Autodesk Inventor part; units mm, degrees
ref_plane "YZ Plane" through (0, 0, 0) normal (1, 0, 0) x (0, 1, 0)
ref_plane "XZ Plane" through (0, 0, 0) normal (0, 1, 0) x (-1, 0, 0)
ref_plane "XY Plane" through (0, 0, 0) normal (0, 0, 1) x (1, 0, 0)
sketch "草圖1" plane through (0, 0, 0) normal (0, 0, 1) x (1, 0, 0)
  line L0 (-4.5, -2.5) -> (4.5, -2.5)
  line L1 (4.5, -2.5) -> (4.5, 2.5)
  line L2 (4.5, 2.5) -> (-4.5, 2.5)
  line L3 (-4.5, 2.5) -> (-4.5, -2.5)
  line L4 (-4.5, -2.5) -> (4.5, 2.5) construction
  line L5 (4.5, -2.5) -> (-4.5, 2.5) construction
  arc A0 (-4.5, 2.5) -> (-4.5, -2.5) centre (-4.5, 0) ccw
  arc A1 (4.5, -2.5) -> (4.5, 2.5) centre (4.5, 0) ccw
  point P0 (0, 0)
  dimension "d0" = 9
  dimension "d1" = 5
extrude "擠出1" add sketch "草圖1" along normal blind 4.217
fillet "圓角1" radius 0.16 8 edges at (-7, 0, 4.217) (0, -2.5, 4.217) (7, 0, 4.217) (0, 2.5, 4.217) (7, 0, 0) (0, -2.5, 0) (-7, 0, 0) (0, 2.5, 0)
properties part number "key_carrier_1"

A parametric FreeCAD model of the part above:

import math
import FreeCAD as App
import Part
import Sketcher
from FreeCAD import Vector
Q = App.Units.Quantity


def edges_at(feature, points):
    """Names of the edges that pass closest to the given points."""
    edges = feature.Shape.Edges
    near = lambda p: min(range(len(edges)), key=lambda i: edges[i].distToShape(Part.Vertex(*p))[0])
    return sorted({f"Edge{near(p) + 1}" for p in points})

doc = App.newDocument("Part")
body = doc.addObject("PartDesign::Body", "Body")

sketch1 = body.newObject("Sketcher::SketchObject", "Sketch")
sketch1.AttachmentSupport = (doc.getObject("XY_Plane"), [""])
sketch1.MapMode = "FlatFace"
sketch1.addGeometry([
    Part.LineSegment(Vector(4.5, 2.5, 0), Vector(-4.5, 2.5, 0)),
    Part.ArcOfCircle(Part.Circle(Vector(-4.5, 0, 0), Vector(0, 0, 1), 2.5), math.radians(90), math.radians(270)),
    Part.LineSegment(Vector(-4.5, -2.5, 0), Vector(4.5, -2.5, 0)),
    Part.ArcOfCircle(Part.Circle(Vector(4.5, 0, 0), Vector(0, 0, 1), 2.5), math.radians(-90), math.radians(90)),
], False)
sketch1.addConstraint([
    Sketcher.Constraint("Tangent", 0, 2, 1, 1),
    Sketcher.Constraint("Tangent", 1, 2, 2, 1),
    Sketcher.Constraint("Tangent", 2, 2, 3, 1),
    Sketcher.Constraint("Tangent", 3, 2, 0, 1),
    Sketcher.Constraint("Horizontal", 0),
    Sketcher.Constraint("Horizontal", 2),
    Sketcher.Constraint("Symmetric", 1, 3, 3, 3, -1, 1),
    Sketcher.Constraint("Radius", 1, Q("2.5 mm")),
    Sketcher.Constraint("DistanceX", 0, 2, 0, 1, Q("9 mm")),
])
pad1 = body.newObject("PartDesign::Pad", "Pad")
pad1.Profile = sketch1
pad1.Length = 4.217
doc.recompute()

fillet = body.newObject("PartDesign::Fillet", "Fillet")
fillet.Base = (pad1, edges_at(pad1, [
    (-7, 0, 4.217),
    (0, -2.5, 4.217),
    (7, 0, 4.217),
    (0, 2.5, 4.217),
    (7, 0, 0),
    (0, -2.5, 0),
    (-7, 0, 0),
    (0, 2.5, 0),
]))
fillet.Radius = 0.16

doc.recompute()
